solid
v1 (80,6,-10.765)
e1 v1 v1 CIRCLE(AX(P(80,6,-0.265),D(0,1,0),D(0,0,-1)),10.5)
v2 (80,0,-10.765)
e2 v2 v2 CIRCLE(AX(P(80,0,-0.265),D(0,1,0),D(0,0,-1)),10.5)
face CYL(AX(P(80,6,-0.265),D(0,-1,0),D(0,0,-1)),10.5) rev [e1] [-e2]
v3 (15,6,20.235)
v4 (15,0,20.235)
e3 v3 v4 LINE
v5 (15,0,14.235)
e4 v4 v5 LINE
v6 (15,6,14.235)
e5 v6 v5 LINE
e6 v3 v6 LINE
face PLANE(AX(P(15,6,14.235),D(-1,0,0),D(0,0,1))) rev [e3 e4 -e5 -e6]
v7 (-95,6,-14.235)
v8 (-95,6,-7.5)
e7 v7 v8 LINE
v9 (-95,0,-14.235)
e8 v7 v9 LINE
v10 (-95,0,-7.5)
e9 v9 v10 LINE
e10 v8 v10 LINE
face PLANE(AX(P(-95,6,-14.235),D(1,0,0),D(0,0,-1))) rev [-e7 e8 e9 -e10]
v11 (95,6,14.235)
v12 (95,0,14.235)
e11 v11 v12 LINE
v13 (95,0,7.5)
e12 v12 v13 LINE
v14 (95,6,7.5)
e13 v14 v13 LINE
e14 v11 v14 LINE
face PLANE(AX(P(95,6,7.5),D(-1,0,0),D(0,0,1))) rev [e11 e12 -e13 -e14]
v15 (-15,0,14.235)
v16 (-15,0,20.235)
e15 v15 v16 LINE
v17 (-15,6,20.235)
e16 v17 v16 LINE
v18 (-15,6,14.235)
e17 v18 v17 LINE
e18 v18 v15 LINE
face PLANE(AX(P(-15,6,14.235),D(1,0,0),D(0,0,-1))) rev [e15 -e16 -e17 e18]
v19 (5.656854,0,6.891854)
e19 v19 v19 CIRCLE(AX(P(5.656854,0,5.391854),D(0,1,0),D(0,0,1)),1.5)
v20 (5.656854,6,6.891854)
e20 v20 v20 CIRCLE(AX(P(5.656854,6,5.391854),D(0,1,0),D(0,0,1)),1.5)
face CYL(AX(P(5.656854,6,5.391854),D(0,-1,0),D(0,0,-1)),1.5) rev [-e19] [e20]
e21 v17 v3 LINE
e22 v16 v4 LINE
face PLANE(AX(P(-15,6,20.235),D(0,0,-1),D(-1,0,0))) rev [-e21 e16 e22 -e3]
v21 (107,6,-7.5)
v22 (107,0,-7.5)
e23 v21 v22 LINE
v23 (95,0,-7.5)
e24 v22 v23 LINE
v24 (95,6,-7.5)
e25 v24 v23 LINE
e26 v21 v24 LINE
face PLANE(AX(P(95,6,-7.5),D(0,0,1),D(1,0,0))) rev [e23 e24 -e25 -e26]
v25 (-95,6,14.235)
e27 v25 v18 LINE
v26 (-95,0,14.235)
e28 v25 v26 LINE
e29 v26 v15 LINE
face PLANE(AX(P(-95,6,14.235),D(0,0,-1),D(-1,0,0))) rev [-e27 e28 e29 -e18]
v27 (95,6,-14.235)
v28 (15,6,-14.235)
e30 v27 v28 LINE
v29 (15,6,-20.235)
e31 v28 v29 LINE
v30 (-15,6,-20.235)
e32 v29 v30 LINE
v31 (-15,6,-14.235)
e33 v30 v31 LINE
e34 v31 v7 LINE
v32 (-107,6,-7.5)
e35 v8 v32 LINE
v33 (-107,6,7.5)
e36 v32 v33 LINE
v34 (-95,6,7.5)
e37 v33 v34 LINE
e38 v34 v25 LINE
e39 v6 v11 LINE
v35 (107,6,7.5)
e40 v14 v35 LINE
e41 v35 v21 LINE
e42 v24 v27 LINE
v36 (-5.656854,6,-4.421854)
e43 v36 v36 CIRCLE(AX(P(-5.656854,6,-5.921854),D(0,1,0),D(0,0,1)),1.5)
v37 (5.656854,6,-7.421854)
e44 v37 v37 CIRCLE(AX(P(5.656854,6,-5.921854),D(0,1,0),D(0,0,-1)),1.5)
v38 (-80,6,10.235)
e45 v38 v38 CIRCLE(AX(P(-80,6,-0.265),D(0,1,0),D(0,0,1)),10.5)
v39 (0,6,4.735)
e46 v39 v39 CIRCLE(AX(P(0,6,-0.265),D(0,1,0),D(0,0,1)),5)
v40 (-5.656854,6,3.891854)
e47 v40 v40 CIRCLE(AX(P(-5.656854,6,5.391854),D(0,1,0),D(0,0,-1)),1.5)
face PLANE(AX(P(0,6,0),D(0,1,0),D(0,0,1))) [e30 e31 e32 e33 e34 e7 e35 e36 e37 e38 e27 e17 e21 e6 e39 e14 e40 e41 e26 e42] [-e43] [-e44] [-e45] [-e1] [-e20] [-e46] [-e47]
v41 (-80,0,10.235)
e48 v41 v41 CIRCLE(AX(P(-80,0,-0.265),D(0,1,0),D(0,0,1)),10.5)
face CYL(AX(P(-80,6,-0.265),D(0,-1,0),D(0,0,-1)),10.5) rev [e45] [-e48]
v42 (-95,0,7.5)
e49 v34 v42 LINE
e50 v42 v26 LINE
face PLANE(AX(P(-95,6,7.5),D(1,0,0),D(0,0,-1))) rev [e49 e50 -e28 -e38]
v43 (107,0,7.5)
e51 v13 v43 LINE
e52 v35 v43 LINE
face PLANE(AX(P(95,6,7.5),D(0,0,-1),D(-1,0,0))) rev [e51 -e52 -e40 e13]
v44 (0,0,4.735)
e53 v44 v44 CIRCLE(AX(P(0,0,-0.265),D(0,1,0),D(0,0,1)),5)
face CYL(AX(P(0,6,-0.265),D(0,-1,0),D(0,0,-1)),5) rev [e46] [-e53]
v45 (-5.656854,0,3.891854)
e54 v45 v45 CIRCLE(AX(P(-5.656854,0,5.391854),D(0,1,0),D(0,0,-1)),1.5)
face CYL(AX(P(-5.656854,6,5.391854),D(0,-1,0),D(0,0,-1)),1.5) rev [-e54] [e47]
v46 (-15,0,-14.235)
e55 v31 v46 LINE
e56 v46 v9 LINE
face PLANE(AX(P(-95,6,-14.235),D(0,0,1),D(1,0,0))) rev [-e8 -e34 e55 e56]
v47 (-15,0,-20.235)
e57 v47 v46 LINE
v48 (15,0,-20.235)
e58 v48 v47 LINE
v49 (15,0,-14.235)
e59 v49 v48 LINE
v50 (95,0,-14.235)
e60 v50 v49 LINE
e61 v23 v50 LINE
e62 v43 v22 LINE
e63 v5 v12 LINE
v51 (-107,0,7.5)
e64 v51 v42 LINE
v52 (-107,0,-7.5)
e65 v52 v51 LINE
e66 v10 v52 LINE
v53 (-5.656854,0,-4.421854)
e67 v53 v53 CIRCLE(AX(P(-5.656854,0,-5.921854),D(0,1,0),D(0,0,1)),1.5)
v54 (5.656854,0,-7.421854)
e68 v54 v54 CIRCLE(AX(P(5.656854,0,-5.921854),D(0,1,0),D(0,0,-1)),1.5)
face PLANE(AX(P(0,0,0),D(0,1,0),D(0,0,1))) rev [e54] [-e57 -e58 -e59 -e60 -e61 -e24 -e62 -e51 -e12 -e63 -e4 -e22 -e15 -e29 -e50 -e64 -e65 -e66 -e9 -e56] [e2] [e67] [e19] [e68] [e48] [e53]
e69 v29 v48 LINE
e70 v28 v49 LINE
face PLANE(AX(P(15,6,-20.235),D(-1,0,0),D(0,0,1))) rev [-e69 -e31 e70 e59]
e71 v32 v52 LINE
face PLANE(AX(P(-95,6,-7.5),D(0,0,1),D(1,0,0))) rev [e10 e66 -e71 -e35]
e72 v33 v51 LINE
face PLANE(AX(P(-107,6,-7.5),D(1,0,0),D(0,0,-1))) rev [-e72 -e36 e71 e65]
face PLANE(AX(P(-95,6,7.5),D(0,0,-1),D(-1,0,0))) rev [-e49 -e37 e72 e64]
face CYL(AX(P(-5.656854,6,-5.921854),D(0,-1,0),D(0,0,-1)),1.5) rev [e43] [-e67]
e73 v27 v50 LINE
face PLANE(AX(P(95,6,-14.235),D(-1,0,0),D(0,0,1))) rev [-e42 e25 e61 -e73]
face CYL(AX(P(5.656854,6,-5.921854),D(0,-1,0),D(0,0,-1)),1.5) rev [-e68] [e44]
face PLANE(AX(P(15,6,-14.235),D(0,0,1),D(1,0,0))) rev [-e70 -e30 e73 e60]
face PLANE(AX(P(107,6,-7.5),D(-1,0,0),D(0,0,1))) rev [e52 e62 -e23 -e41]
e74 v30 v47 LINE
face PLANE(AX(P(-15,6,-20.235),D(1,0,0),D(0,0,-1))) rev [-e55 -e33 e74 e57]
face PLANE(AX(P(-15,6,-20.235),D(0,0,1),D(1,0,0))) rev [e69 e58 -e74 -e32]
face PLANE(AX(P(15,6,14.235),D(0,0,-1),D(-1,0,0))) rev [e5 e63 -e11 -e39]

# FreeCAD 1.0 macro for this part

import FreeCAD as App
import Part
import Sketcher

doc = App.newDocument("Part")
body = doc.addObject("PartDesign::Body", "Body")

# Sketch on XZ plane
sketch1 = body.newObject("Sketcher::SketchObject", "Sketch")
sketch1.AttachmentSupport = (doc.getObject("XZ_Plane"), [""])
sketch1.MapMode = "FlatFace"
sketch1.addGeometry([
    Part.LineSegment(App.Vector(-15, -14.2, 0), App.Vector(-95, -14.2, 0)),  # 0
    Part.LineSegment(App.Vector(-95, -14.2, 0), App.Vector(-95, -7.5, 0)),  # 1
    Part.LineSegment(App.Vector(-95, -7.5, 0), App.Vector(-107, -7.5, 0)),  # 2
    Part.LineSegment(App.Vector(-107, -7.5, 0), App.Vector(-107, 7.5, 0)),  # 3
    Part.LineSegment(App.Vector(-107, 7.5, 0), App.Vector(-95, 7.5, 0)),  # 4
    Part.LineSegment(App.Vector(-95, 7.5, 0), App.Vector(-95, 14.2, 0)),  # 5
    Part.LineSegment(App.Vector(-95, 14.2, 0), App.Vector(-15, 14.2, 0)),  # 6
    Part.LineSegment(App.Vector(-15, 14.2, 0), App.Vector(-15, 20.2, 0)),  # 7
    Part.LineSegment(App.Vector(-15, 20.2, 0), App.Vector(15, 20.2, 0)),  # 8
    Part.LineSegment(App.Vector(15, 20.2, 0), App.Vector(15, 14.2, 0)),  # 9
    Part.LineSegment(App.Vector(15, 14.2, 0), App.Vector(95, 14.2, 0)),  # 10
    Part.LineSegment(App.Vector(95, 14.2, 0), App.Vector(95, 7.5, 0)),  # 11
    Part.LineSegment(App.Vector(95, 7.5, 0), App.Vector(107, 7.5, 0)),  # 12
    Part.LineSegment(App.Vector(107, 7.5, 0), App.Vector(107, -7.5, 0)),  # 13
    Part.LineSegment(App.Vector(107, -7.5, 0), App.Vector(95, -7.5, 0)),  # 14
    Part.LineSegment(App.Vector(95, -7.5, 0), App.Vector(95, -14.2, 0)),  # 15
    Part.LineSegment(App.Vector(95, -14.2, 0), App.Vector(15, -14.2, 0)),  # 16
    Part.LineSegment(App.Vector(15, -14.2, 0), App.Vector(15, -20.2, 0)),  # 17
    Part.LineSegment(App.Vector(15, -20.2, 0), App.Vector(-15, -20.2, 0)),  # 18
    Part.LineSegment(App.Vector(-15, -20.2, 0), App.Vector(-15, -14.2, 0)),  # 19
    Part.Circle(App.Vector(5.7, 5.4, 0), App.Vector(0, 0, 1), 1.5),  # 20
    Part.Circle(App.Vector(-5.7, 5.4, 0), App.Vector(0, 0, 1), 1.5),  # 21
    Part.Circle(App.Vector(80, -0.3, 0), App.Vector(0, 0, 1), 10.5),  # 22
    Part.Circle(App.Vector(5.7, -5.9, 0), App.Vector(0, 0, 1), 1.5),  # 23
    Part.Circle(App.Vector(0, -0.3, 0), App.Vector(0, 0, 1), 5),  # 24
    Part.Circle(App.Vector(-80, -0.3, 0), App.Vector(0, 0, 1), 10.5),  # 25
    Part.Circle(App.Vector(-5.7, -5.9, 0), App.Vector(0, 0, 1), 1.5),  # 26
], False)
sketch1.addConstraint([
    Sketcher.Constraint("Coincident", 0, 2, 1, 1),
    Sketcher.Constraint("Coincident", 1, 2, 2, 1),
    Sketcher.Constraint("Coincident", 2, 2, 3, 1),
    Sketcher.Constraint("Coincident", 3, 2, 4, 1),
    Sketcher.Constraint("Coincident", 4, 2, 5, 1),
    Sketcher.Constraint("Coincident", 5, 2, 6, 1),
    Sketcher.Constraint("Coincident", 6, 2, 7, 1),
    Sketcher.Constraint("Coincident", 7, 2, 8, 1),
    Sketcher.Constraint("Coincident", 8, 2, 9, 1),
    Sketcher.Constraint("Coincident", 9, 2, 10, 1),
    Sketcher.Constraint("Coincident", 10, 2, 11, 1),
    Sketcher.Constraint("Coincident", 11, 2, 12, 1),
    Sketcher.Constraint("Coincident", 12, 2, 13, 1),
    Sketcher.Constraint("Coincident", 13, 2, 14, 1),
    Sketcher.Constraint("Coincident", 14, 2, 15, 1),
    Sketcher.Constraint("Coincident", 15, 2, 16, 1),
    Sketcher.Constraint("Coincident", 16, 2, 17, 1),
    Sketcher.Constraint("Coincident", 17, 2, 18, 1),
    Sketcher.Constraint("Coincident", 18, 2, 19, 1),
    Sketcher.Constraint("Coincident", 19, 2, 0, 1),
    Sketcher.Constraint("Horizontal", 0),
    Sketcher.Constraint("Vertical", 1),
    Sketcher.Constraint("Horizontal", 2),
    Sketcher.Constraint("Vertical", 3),
    Sketcher.Constraint("Horizontal", 4),
    Sketcher.Constraint("Vertical", 5),
    Sketcher.Constraint("Horizontal", 6),
    Sketcher.Constraint("Vertical", 7),
    Sketcher.Constraint("Horizontal", 8),
    Sketcher.Constraint("Vertical", 9),
    Sketcher.Constraint("Horizontal", 10),
    Sketcher.Constraint("Vertical", 11),
    Sketcher.Constraint("Horizontal", 12),
    Sketcher.Constraint("Vertical", 13),
    Sketcher.Constraint("Horizontal", 14),
    Sketcher.Constraint("Vertical", 15),
    Sketcher.Constraint("Horizontal", 16),
    Sketcher.Constraint("Vertical", 17),
    Sketcher.Constraint("Horizontal", 18),
    Sketcher.Constraint("Vertical", 19),
    Sketcher.Constraint("Equal", 20, 21),
    Sketcher.Constraint("Equal", 21, 23),
    Sketcher.Constraint("Equal", 22, 25),
    Sketcher.Constraint("Equal", 23, 26),
    Sketcher.Constraint("Symmetric", 0, 2, 10, 2, -1, 1),
    Sketcher.Constraint("Symmetric", 2, 2, 12, 2, -1, 1),
    Sketcher.Constraint("Symmetric", 4, 2, 14, 2, -1, 1),
    Sketcher.Constraint("Symmetric", 6, 2, 16, 2, -1, 1),
    Sketcher.Constraint("Symmetric", 8, 2, 18, 2, -1, 1),
    Sketcher.Constraint("Symmetric", 20, 3, 21, 3, -2),
    Sketcher.Constraint("Symmetric", 22, 3, 25, 3, -2),
    Sketcher.Constraint("Symmetric", 23, 3, 26, 3, -2),
    Sketcher.Constraint("Symmetric", 6, 2, 9, 2, -2),
    Sketcher.Constraint("Symmetric", 4, 2, 11, 2, -2),
    Sketcher.Constraint("PointOnObject", 24, 3, -2),
    Sketcher.Constraint("Horizontal", 22, 3, 24, 3),
    Sketcher.Constraint("Vertical", 20, 3, 23, 3),
    Sketcher.Constraint("Diameter", 20, 3.0),
    Sketcher.Constraint("Diameter", 22, 21.0),
    Sketcher.Constraint("Diameter", 24, 10.0),
    Sketcher.Constraint("DistanceX", 0, 2, 0, 1, 80.0),
    Sketcher.Constraint("DistanceX", 2, 2, 2, 1, 12.0),
    Sketcher.Constraint("DistanceX", 8, 1, 8, 2, 30.0),
    Sketcher.Constraint("DistanceY", 3, 1, 3, 2, 15.0),
    Sketcher.Constraint("DistanceY", 7, 1, 7, 2, 6.0),
    Sketcher.Constraint("DistanceX", -1, 1, 22, 3, 80.0),
    Sketcher.Constraint("DistanceY", 25, 3, 5, 2, 14.5),
    Sketcher.Constraint("DistanceY", 1, 1, 1, 2, 6.735),
    Sketcher.Constraint("DistanceX", 21, 3, 20, 3, 11.313708),
    Sketcher.Constraint("DistanceY", 23, 3, 20, 3, 11.313708),
    Sketcher.Constraint("DistanceY", -1, 1, 20, 3, 5.391854),
])
pad1 = body.newObject("PartDesign::Pad", "Pad")
pad1.Profile = sketch1
pad1.Length = 6
pad1.Reversed = True

doc.recompute()
